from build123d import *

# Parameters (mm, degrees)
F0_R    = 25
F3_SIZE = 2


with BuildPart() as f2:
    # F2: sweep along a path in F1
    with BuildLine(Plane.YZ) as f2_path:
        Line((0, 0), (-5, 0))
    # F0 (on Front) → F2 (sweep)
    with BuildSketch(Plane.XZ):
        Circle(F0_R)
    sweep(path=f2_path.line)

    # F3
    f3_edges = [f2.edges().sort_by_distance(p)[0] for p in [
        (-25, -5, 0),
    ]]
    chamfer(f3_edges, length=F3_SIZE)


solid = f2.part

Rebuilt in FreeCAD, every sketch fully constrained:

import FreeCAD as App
import Part
import Sketcher

V = App.Vector
Q = App.Units.Quantity


def edges_at(feature, points):
    """Names of the edges that pass closest to the given points."""
    edges = feature.Shape.Edges
    near = lambda p: min(range(len(edges)), key=lambda i: edges[i].distToShape(Part.Vertex(*p))[0])
    return sorted({f"Edge{near(p) + 1}" for p in points})

doc = App.newDocument("Part")
params = doc.addObject("Spreadsheet::Sheet", "Params")
for row, (alias, value) in enumerate([
    ("sketch1_diameter", "50 mm"),
    ("sketch2_height", "5 mm"),
    ("chamfer_size", "2 mm"),
], start=1):
    params.set(f"A{row}", alias)
    params.set(f"B{row}", "=" + value)
    params.setAlias(f"B{row}", alias)

body = doc.addObject("PartDesign::Body", "Body")

sketch1 = body.newObject("Sketcher::SketchObject", "Sketch")
sketch1.AttachmentSupport = (doc.getObject("XZ_Plane"), [""])
sketch1.MapMode = "FlatFace"
sketch1.addGeometry(Part.Circle(V(0, 0, 0), V(0, 0, 1), 25), False)
sketch1.addConstraint(Sketcher.Constraint("Coincident", 0, 3, -1, 1))
sketch1.addConstraint(Sketcher.Constraint("Diameter", 0, Q("50 mm")))
sketch1.setExpression("Constraints[1]", "Params.sketch1_diameter")

sketch2 = body.newObject("Sketcher::SketchObject", "Sketch001")
sketch2.AttachmentSupport = (doc.getObject("XY_Plane"), [""])
sketch2.MapMode = "FlatFace"
sketch2.addGeometry(Part.LineSegment(V(0, 0, 0), V(0, -5, 0)), False)
sketch2.addConstraint(Sketcher.Constraint("Vertical", 0))
sketch2.addConstraint(Sketcher.Constraint("Coincident", 0, 1, -1, 1))
sketch2.addConstraint(Sketcher.Constraint("DistanceY", 0, 2, 0, 1, Q("5 mm")))
sketch2.setExpression("Constraints[2]", "Params.sketch2_height")
doc.recompute()

additivepipe = body.newObject("PartDesign::AdditivePipe", "AdditivePipe")
additivepipe.Profile = sketch1
additivepipe.Spine = (sketch2, ["Edge1"])
doc.recompute()

chamfer = body.newObject("PartDesign::Chamfer", "Chamfer")
chamfer.Base = (additivepipe, edges_at(additivepipe, [(-25, -5, 0)]))
chamfer.setExpression("Size", "Params.chamfer_size")

doc.recompute()
